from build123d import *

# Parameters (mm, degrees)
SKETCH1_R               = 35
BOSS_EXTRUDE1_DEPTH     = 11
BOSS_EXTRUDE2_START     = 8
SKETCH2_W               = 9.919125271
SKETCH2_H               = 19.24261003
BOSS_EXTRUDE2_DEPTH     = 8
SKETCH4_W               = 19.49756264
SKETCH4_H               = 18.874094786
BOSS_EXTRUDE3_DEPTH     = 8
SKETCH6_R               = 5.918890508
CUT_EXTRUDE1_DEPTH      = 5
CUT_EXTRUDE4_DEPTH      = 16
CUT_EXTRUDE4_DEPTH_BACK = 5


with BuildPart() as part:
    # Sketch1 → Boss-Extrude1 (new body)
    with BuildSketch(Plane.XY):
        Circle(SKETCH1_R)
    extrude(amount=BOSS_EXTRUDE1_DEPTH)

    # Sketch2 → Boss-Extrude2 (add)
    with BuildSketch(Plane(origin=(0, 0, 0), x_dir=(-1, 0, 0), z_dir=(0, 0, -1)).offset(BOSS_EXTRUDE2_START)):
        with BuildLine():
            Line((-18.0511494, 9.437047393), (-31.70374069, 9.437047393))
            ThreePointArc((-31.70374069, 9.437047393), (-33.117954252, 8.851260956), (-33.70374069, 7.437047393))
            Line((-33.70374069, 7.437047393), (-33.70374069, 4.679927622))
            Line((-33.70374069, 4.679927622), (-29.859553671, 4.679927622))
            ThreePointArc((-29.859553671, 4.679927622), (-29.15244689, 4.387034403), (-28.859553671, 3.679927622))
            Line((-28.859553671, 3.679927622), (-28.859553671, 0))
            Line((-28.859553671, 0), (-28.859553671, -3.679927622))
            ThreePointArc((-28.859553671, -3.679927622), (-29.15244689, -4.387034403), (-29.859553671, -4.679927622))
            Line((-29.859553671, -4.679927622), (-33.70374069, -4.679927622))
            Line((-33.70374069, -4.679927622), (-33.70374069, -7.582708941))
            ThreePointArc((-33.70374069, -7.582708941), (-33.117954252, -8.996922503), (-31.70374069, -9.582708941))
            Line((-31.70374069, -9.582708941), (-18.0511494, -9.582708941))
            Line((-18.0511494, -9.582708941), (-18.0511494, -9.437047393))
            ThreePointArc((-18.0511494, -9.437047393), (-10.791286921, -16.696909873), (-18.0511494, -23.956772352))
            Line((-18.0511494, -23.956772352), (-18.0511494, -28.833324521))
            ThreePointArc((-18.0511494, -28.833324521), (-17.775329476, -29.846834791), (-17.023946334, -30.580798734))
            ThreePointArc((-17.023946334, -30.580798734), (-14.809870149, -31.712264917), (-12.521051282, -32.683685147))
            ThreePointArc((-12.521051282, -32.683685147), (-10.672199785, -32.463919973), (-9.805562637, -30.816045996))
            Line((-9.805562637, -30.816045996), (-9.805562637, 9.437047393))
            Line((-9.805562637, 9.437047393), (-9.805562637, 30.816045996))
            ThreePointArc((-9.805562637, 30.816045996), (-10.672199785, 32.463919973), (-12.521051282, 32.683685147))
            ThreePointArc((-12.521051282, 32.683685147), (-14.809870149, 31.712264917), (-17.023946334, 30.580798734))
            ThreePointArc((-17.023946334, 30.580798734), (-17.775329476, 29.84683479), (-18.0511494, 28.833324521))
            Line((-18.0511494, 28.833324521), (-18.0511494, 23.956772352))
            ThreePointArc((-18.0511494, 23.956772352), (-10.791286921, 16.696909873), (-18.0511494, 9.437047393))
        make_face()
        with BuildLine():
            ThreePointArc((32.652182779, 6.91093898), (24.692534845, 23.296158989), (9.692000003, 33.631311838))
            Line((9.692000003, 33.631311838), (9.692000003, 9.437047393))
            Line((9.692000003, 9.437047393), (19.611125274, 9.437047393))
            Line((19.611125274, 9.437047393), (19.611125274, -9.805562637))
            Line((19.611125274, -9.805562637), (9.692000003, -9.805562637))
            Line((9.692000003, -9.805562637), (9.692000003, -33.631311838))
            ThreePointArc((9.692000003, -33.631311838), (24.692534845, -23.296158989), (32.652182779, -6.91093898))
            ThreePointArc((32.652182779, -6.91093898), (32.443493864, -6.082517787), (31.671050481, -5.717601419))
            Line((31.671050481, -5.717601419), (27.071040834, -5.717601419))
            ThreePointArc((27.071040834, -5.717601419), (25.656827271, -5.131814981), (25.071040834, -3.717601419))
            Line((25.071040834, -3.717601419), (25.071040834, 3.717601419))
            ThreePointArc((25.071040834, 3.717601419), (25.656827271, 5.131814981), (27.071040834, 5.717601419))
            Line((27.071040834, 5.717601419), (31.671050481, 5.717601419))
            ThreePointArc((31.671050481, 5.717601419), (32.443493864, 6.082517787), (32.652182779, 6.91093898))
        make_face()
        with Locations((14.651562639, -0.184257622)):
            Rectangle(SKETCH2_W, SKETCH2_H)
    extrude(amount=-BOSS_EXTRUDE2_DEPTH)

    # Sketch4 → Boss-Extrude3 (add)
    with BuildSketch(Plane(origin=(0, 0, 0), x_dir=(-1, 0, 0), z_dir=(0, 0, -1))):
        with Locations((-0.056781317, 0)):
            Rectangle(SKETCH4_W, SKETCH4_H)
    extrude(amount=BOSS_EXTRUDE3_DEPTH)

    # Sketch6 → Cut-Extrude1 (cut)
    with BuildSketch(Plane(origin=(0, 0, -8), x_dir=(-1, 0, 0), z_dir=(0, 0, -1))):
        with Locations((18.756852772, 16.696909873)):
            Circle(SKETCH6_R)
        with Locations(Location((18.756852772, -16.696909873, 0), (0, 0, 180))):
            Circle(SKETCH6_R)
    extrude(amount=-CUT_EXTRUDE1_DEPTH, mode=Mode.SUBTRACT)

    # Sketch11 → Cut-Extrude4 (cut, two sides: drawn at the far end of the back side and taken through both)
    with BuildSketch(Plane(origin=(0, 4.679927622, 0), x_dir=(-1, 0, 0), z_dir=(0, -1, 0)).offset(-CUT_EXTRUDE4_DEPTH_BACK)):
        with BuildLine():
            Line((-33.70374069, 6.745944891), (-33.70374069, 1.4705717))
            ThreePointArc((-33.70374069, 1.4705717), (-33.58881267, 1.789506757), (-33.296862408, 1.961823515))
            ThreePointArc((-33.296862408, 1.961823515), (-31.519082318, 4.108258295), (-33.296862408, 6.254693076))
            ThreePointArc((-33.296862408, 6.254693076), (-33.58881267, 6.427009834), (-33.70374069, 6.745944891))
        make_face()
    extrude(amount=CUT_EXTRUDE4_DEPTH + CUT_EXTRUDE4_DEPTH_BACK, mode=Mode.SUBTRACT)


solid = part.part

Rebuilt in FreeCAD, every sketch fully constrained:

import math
import FreeCAD as App
import Part
import Sketcher

doc = App.newDocument("Part")
body = doc.addObject("PartDesign::Body", "Body")

sketch1 = doc.addObject("Sketcher::SketchObject", "Sketch")
body.addObject(sketch1)
sketch1.AttachmentSupport = (doc.XY_Plane, [""])
sketch1.MapMode = "FlatFace"
sketch1.addGeometry(Part.Circle(App.Vector(0, 0, 0), App.Vector(0, 0, 1), 35), False)
sketch1.addConstraint([
    Sketcher.Constraint("Coincident", 0, 3, -1, 1),
    Sketcher.Constraint("Diameter", 0, 70.0),
])
pad1 = doc.addObject("PartDesign::Pad", "Pad")
body.addObject(pad1)
pad1.Profile = sketch1
pad1.Length = 11

sketch2 = doc.addObject("Sketcher::SketchObject", "Sketch001")
body.addObject(sketch2)
sketch2.AttachmentSupport = (doc.XY_Plane, [""])
sketch2.MapMode = "FlatFace"
sketch2.AttachmentOffset = App.Placement(App.Vector(0, 0, -8), App.Rotation())
sketch2.addGeometry([
    Part.LineSegment(App.Vector(18.05, 9.44, 0), App.Vector(31.7, 9.44, 0)),
    Part.ArcOfCircle(Part.Circle(App.Vector(31.7, 7.44, 0), App.Vector(0, 0, 1), 2), math.radians(0), math.radians(90)),
    Part.LineSegment(App.Vector(33.7, 7.44, 0), App.Vector(33.7, 4.68, 0)),
    Part.LineSegment(App.Vector(33.7, 4.68, 0), App.Vector(29.86, 4.68, 0)),
    Part.ArcOfCircle(Part.Circle(App.Vector(29.86, 3.68, 0), App.Vector(0, 0, 1), 1), math.radians(90), math.radians(180)),
    Part.LineSegment(App.Vector(28.86, 3.68, 0), App.Vector(28.86, -3.68, 0)),
    Part.ArcOfCircle(Part.Circle(App.Vector(29.86, -3.68, 0), App.Vector(0, 0, 1), 1), math.radians(-180), math.radians(-90)),
    Part.LineSegment(App.Vector(29.86, -4.68, 0), App.Vector(33.7, -4.68, 0)),
    Part.LineSegment(App.Vector(33.7, -4.68, 0), App.Vector(33.7, -7.58, 0)),
    Part.ArcOfCircle(Part.Circle(App.Vector(31.7, -7.58, 0), App.Vector(0, 0, 1), 2), math.radians(-90), math.radians(0)),
    Part.LineSegment(App.Vector(31.7, -9.58, 0), App.Vector(18.05, -9.58, 0)),
    Part.LineSegment(App.Vector(18.05, -9.58, 0), App.Vector(18.05, -9.44, 0)),
    Part.ArcOfCircle(Part.Circle(App.Vector(18.05, -16.7, 0), App.Vector(0, 0, 1), 7.26), math.radians(90), math.radians(270)),
    Part.LineSegment(App.Vector(18.05, -23.96, 0), App.Vector(18.05, -28.83, 0)),
    Part.ArcOfCircle(Part.Circle(App.Vector(16.05, -28.83, 0), App.Vector(0, 0, 1), 2), math.radians(-61), math.radians(0)),
    Part.ArcOfCircle(Part.Circle(App.Vector(0, 0, 0), App.Vector(0, 0, 1), 35), math.radians(-69.04), math.radians(-60.9)),
    Part.ArcOfCircle(Part.Circle(App.Vector(11.81, -30.82, 0), App.Vector(0, 0, 1), 2), math.radians(-180), math.radians(-69)),
    Part.LineSegment(App.Vector(9.81, -30.82, 0), App.Vector(9.81, 30.82, 0)),
    Part.ArcOfCircle(Part.Circle(App.Vector(11.81, 30.82, 0), App.Vector(0, 0, 1), 2), math.radians(69), math.radians(180)),
    Part.ArcOfCircle(Part.Circle(App.Vector(0, 0, 0), App.Vector(0, 0, 1), 35), math.radians(60.9), math.radians(69.04)),
    Part.ArcOfCircle(Part.Circle(App.Vector(16.05, 28.83, 0), App.Vector(0, 0, 1), 2), math.radians(0), math.radians(61)),
    Part.LineSegment(App.Vector(18.05, 28.83, 0), App.Vector(18.05, 23.96, 0)),
    Part.ArcOfCircle(Part.Circle(App.Vector(18.05, 16.7, 0), App.Vector(0, 0, 1), 7.26), math.radians(90), math.radians(270)),
    Part.ArcOfCircle(Part.Circle(App.Vector(2.42, 0, 0), App.Vector(0, 0, 1), 35.75), math.radians(110), math.radians(169)),
    Part.LineSegment(App.Vector(-9.69, 33.63, 0), App.Vector(-9.69, 9.44, 0)),
    Part.LineSegment(App.Vector(-9.69, 9.44, 0), App.Vector(-9.69, -9.81, 0)),
    Part.LineSegment(App.Vector(-9.69, -9.81, 0), App.Vector(-9.69, -33.63, 0)),
    Part.ArcOfCircle(Part.Circle(App.Vector(2.42, 0, 0), App.Vector(0, 0, 1), 35.75), math.radians(-169), math.radians(-110)),
    Part.ArcOfCircle(Part.Circle(App.Vector(-31.67, -6.72, 0), App.Vector(0, 0, 1), 1), math.radians(90), math.radians(191)),
    Part.LineSegment(App.Vector(-31.67, -5.72, 0), App.Vector(-27.07, -5.72, 0)),
    Part.ArcOfCircle(Part.Circle(App.Vector(-27.07, -3.72, 0), App.Vector(0, 0, 1), 2), math.radians(-90), math.radians(0)),
    Part.LineSegment(App.Vector(-25.07, -3.72, 0), App.Vector(-25.07, 3.72, 0)),
    Part.ArcOfCircle(Part.Circle(App.Vector(-27.07, 3.72, 0), App.Vector(0, 0, 1), 2), math.radians(0), math.radians(90)),
    Part.LineSegment(App.Vector(-27.07, 5.72, 0), App.Vector(-31.67, 5.72, 0)),
    Part.ArcOfCircle(Part.Circle(App.Vector(-31.67, 6.72, 0), App.Vector(0, 0, 1), 1), math.radians(169), math.radians(270)),
], False)
sketch2.addConstraint([
    Sketcher.Constraint("Tangent", 0, 2, 1, 2),
    Sketcher.Constraint("Tangent", 1, 1, 2, 1),
    Sketcher.Constraint("Coincident", 2, 2, 3, 1),
    Sketcher.Constraint("Tangent", 3, 2, 4, 1),
    Sketcher.Constraint("Tangent", 4, 2, 5, 1),
    Sketcher.Constraint("Tangent", 5, 2, 6, 1),
    Sketcher.Constraint("Tangent", 6, 2, 7, 1),
    Sketcher.Constraint("Coincident", 7, 2, 8, 1),
    Sketcher.Constraint("Tangent", 8, 2, 9, 2),
    Sketcher.Constraint("Tangent", 9, 1, 10, 1),
    Sketcher.Constraint("Coincident", 10, 2, 11, 1),
    Sketcher.Constraint("Coincident", 11, 2, 12, 1),
    Sketcher.Constraint("Coincident", 12, 2, 13, 1),
    Sketcher.Constraint("Tangent", 13, 2, 14, 2),
    Sketcher.Constraint("Tangent", 14, 1, 15, 2),
    Sketcher.Constraint("Tangent", 15, 1, 16, 2),
    Sketcher.Constraint("Tangent", 16, 1, 17, 1),
    Sketcher.Constraint("Tangent", 17, 2, 18, 2),
    Sketcher.Constraint("Tangent", 18, 1, 19, 2),
    Sketcher.Constraint("Tangent", 19, 1, 20, 2),
    Sketcher.Constraint("Tangent", 20, 1, 21, 1),
    Sketcher.Constraint("Coincident", 21, 2, 22, 1),
    Sketcher.Constraint("Tangent", 22, 2, 0, 1),
    Sketcher.Constraint("Coincident", 23, 1, 24, 1),
    Sketcher.Constraint("Coincident", 24, 2, 25, 1),
    Sketcher.Constraint("Coincident", 25, 2, 26, 1),
    Sketcher.Constraint("Coincident", 26, 2, 27, 2),
    Sketcher.Constraint("Tangent", 27, 1, 28, 2),
    Sketcher.Constraint("Tangent", 28, 1, 29, 1),
    Sketcher.Constraint("Tangent", 29, 2, 30, 1),
    Sketcher.Constraint("Tangent", 30, 2, 31, 1),
    Sketcher.Constraint("Tangent", 31, 2, 32, 1),
    Sketcher.Constraint("Tangent", 32, 2, 33, 1),
    Sketcher.Constraint("Tangent", 33, 2, 34, 2),
    Sketcher.Constraint("Tangent", 34, 1, 23, 2),
    Sketcher.Constraint("Horizontal", 0),
    Sketcher.Constraint("Vertical", 2),
    Sketcher.Constraint("Horizontal", 3),
    Sketcher.Constraint("Vertical", 5),
    Sketcher.Constraint("Horizontal", 7),
    Sketcher.Constraint("Vertical", 8),
    Sketcher.Constraint("Horizontal", 10),
    Sketcher.Constraint("Vertical", 11),
    Sketcher.Constraint("Vertical", 13),
    Sketcher.Constraint("Vertical", 17),
    Sketcher.Constraint("Vertical", 21),
    Sketcher.Constraint("Vertical", 24),
    Sketcher.Constraint("Vertical", 25),
    Sketcher.Constraint("Vertical", 26),
    Sketcher.Constraint("Horizontal", 29),
    Sketcher.Constraint("Vertical", 31),
    Sketcher.Constraint("Horizontal", 33),
    Sketcher.Constraint("Coincident", 15, 3, -1, 1),
    Sketcher.Constraint("Coincident", 19, 3, -1, 1),
    Sketcher.Constraint("Coincident", 27, 3, 23, 3),
    Sketcher.Constraint("Equal", 4, 6),
    Sketcher.Constraint("Equal", 1, 9),
    Sketcher.Constraint("Equal", 9, 14),
    Sketcher.Constraint("Equal", 14, 16),
    Sketcher.Constraint("Equal", 16, 18),
    Sketcher.Constraint("Equal", 15, 19),
    Sketcher.Constraint("Equal", 18, 20),
    Sketcher.Constraint("Equal", 12, 22),
    Sketcher.Constraint("Equal", 23, 27),
    Sketcher.Constraint("Equal", 6, 28),
    Sketcher.Constraint("Equal", 20, 30),
    Sketcher.Constraint("Equal", 30, 32),
    Sketcher.Constraint("Equal", 28, 34),
    Sketcher.Constraint("Symmetric", 12, 3, 22, 3, -1),
    Sketcher.Constraint("Symmetric", 28, 3, 34, 3, -1),
    Sketcher.Constraint("Symmetric", 2, 2, 7, 2, -1),
    Sketcher.Constraint("Horizontal", 22, 2, 24, 2),
    Sketcher.Constraint("Vertical", 14, 3, 20, 3),
    Sketcher.Constraint("Vertical", 22, 3, 10, 2),
    Sketcher.Constraint("Vertical", 11, 2, 12, 2),
    Sketcher.Constraint("Radius", 1, 2.0),
    Sketcher.Constraint("Radius", 4, 1.0),
    Sketcher.Constraint("Radius", 15, 35.0),
    Sketcher.Constraint("DistanceX", 23, 1, -1, 1, 9.692),
    Sketcher.Constraint("Radius", 12, 7.259862),
    Sketcher.Constraint("Radius", 23, 35.745454),
    Sketcher.Constraint("DistanceY", 1, 3, 18, 3, 23.378999),
    Sketcher.Constraint("DistanceX", 0, 1, 0, 2, 13.652591),
    Sketcher.Constraint("DistanceX", 29, 1, 29, 2, 4.60001),
    Sketcher.Constraint("DistanceY", 2, 2, 2, 1, 2.75712),
    Sketcher.Constraint("DistanceY", 8, 2, 8, 1, 2.902781),
    Sketcher.Constraint("DistanceY", 17, 1, 17, 2, 61.632092),
    Sketcher.Constraint("DistanceY", 25, 2, 25, 1, 19.24261),
    Sketcher.Constraint("DistanceY", 26, 2, 26, 1, 23.825749),
    Sketcher.Constraint("DistanceY", 28, 3, -1, 1, 6.717601),
    Sketcher.Constraint("DistanceY", 14, 1, -1, 1, 30.580799),
    Sketcher.Constraint("DistanceX", 3, 2, 3, 1, 3.844187),
])
pad2 = doc.addObject("PartDesign::Pad", "Pad001")
body.addObject(pad2)
pad2.Profile = sketch2
pad2.Length = 8

sketch3 = doc.addObject("Sketcher::SketchObject", "Sketch002")
body.addObject(sketch3)
sketch3.AttachmentSupport = (doc.XY_Plane, [""])
sketch3.MapMode = "FlatFace"
sketch3.addGeometry([
    Part.LineSegment(App.Vector(10, 9, 0), App.Vector(10, -9, 0)),
    Part.LineSegment(App.Vector(10, -9, 0), App.Vector(-10, -9, 0)),
    Part.LineSegment(App.Vector(-10, -9, 0), App.Vector(-10, 9, 0)),
    Part.LineSegment(App.Vector(-10, 9, 0), App.Vector(10, 9, 0)),
], False)
sketch3.addConstraint([
    Sketcher.Constraint("Coincident", 0, 2, 1, 1),
    Sketcher.Constraint("Coincident", 1, 2, 2, 1),
    Sketcher.Constraint("Coincident", 2, 2, 3, 1),
    Sketcher.Constraint("Coincident", 3, 2, 0, 1),
    Sketcher.Constraint("Vertical", 0),
    Sketcher.Constraint("Horizontal", 1),
    Sketcher.Constraint("Vertical", 2),
    Sketcher.Constraint("Horizontal", 3),
    Sketcher.Constraint("DistanceX", 1, 2, -1, 1, 9.692),
    Sketcher.Constraint("DistanceX", 1, 2, 1, 1, 19.497563),
    Sketcher.Constraint("DistanceY", 0, 2, 0, 1, 18.874095),
    Sketcher.Constraint("DistanceY", 0, 2, -1, 1, 9.437047),
])
pad3 = doc.addObject("PartDesign::Pad", "Pad002")
body.addObject(pad3)
pad3.Profile = sketch3
pad3.Length = 8
pad3.Reversed = True

sketch4 = doc.addObject("Sketcher::SketchObject", "Sketch003")
body.addObject(sketch4)
sketch4.AttachmentSupport = (doc.XY_Plane, [""])
sketch4.MapMode = "FlatFace"
sketch4.AttachmentOffset = App.Placement(App.Vector(0, 0, -8), App.Rotation())
sketch4.addGeometry([
    Part.Circle(App.Vector(-19, 17, 0), App.Vector(0, 0, 1), 6),
    Part.Circle(App.Vector(-19, -17, 0), App.Vector(0, 0, 1), 6),
], False)
sketch4.addConstraint([
    Sketcher.Constraint("Equal", 0, 1),
    Sketcher.Constraint("Symmetric", 0, 3, 1, 3, -1),
    Sketcher.Constraint("Diameter", 0, 11.837781),
    Sketcher.Constraint("DistanceY", -1, 1, 0, 3, 16.69691),
    Sketcher.Constraint("DistanceX", 0, 3, -1, 1, 18.756853),
])
pocket1 = doc.addObject("PartDesign::Pocket", "Pocket")
body.addObject(pocket1)
pocket1.Profile = sketch4
pocket1.Length = 5
pocket1.Reversed = True

sketch5 = doc.addObject("Sketcher::SketchObject", "Sketch004")
body.addObject(sketch5)
sketch5.AttachmentSupport = (doc.XZ_Plane, [""])
sketch5.MapMode = "FlatFace"
sketch5.AttachmentOffset = App.Placement(App.Vector(0, 0, -4.679928), App.Rotation())
sketch5.addGeometry([
    Part.LineSegment(App.Vector(33.7, -6.75, 0), App.Vector(33.7, -1.47, 0)),
    Part.ArcOfCircle(Part.Circle(App.Vector(33.2, -1.47, 0), App.Vector(0, 0, 1), 0.5), math.radians(-79), math.radians(0)),
    Part.ArcOfCircle(Part.Circle(App.Vector(33.7, -4.11, 0), App.Vector(0, 0, 1), 2.18), math.radians(101), math.radians(259)),
    Part.ArcOfCircle(Part.Circle(App.Vector(33.2, -6.75, 0), App.Vector(0, 0, 1), 0.5), math.radians(0), math.radians(79)),
], False)
sketch5.addConstraint([
    Sketcher.Constraint("Tangent", 0, 2, 1, 2),
    Sketcher.Constraint("Tangent", 1, 1, 2, 1),
    Sketcher.Constraint("Tangent", 2, 2, 3, 2),
    Sketcher.Constraint("Tangent", 3, 1, 0, 1),
    Sketcher.Constraint("Vertical", 0),
    Sketcher.Constraint("Equal", 1, 3),
    Sketcher.Constraint("Vertical", 2, 3, 0, 2),
    Sketcher.Constraint("Radius", 1, 0.5),
    Sketcher.Constraint("Radius", 2, 2.184658),
    Sketcher.Constraint("DistanceX", -1, 1, 1, 3, 33.203741),
    Sketcher.Constraint("DistanceY", 1, 3, -1, 1, 1.470572),
])
pocket2 = doc.addObject("PartDesign::Pocket", "Pocket001")
body.addObject(pocket2)
pocket2.Profile = sketch5
pocket2.Type = "ThroughAll"
pocket2.Midplane = True

doc.recompute()
